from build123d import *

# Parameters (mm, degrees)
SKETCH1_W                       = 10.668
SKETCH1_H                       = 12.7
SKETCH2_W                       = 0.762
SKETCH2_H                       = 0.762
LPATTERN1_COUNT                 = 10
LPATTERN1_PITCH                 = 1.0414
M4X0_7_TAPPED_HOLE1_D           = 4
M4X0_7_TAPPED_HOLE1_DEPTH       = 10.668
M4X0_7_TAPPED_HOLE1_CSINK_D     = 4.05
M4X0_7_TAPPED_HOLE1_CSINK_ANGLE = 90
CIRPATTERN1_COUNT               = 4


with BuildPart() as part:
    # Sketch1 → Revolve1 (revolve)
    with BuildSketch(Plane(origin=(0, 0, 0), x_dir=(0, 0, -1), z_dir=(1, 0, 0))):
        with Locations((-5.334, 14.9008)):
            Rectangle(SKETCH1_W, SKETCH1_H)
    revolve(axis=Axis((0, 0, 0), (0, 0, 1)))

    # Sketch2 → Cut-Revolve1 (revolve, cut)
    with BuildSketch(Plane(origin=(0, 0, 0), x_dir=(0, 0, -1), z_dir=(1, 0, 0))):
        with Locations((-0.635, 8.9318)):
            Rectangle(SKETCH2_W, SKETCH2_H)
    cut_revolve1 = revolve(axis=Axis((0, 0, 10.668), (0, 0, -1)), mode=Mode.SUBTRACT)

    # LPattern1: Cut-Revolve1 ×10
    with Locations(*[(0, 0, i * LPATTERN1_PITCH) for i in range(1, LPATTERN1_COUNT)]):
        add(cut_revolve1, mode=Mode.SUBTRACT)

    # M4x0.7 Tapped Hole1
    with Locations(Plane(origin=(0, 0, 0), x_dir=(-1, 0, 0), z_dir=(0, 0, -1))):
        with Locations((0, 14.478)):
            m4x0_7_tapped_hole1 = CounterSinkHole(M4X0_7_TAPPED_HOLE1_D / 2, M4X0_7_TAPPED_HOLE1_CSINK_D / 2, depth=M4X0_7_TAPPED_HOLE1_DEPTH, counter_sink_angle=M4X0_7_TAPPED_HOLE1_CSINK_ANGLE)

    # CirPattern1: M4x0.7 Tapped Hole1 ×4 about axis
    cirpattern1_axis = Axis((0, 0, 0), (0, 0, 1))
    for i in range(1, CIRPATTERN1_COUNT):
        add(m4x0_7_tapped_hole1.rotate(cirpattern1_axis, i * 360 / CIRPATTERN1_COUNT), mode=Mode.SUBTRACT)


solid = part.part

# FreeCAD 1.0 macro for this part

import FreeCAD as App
import Part
import Sketcher

V = App.Vector
Q = App.Units.Quantity

doc = App.newDocument("Part")
params = doc.addObject("Spreadsheet::Sheet", "Params")
for row, (alias, value) in enumerate([
    ("sketch1_width", "0.5 in"),
    ("sketch1_height", "0.42 in"),
    ("revolution_angle", "360 deg"),
    ("sketch2_width", "0.03 in"),
    ("groove_angle", "360 deg"),
    ("linearpattern_pitch", "0.041 in"),
    ("hole_diameter", "4 mm"),
    ("hole_depth", "0.42 in"),
    ("hole_csink_diameter", "4.05 mm"),
], start=1):
    params.set(f"A{row}", alias)
    params.set(f"B{row}", "=" + value)
    params.setAlias(f"B{row}", alias)

body = doc.addObject("PartDesign::Body", "Body")

sketch1 = body.newObject("Sketcher::SketchObject", "Sketch")
sketch1.AttachmentSupport = (doc.getObject("YZ_Plane"), [""])
sketch1.MapMode = "FlatFace"
sketch1.addGeometry([
    Part.LineSegment(V(21.2508, 10.668, 0), V(8.5508, 10.668, 0)),
    Part.LineSegment(V(8.5508, 10.668, 0), V(8.5508, 0, 0)),
    Part.LineSegment(V(8.5508, 0, 0), V(21.2508, 0, 0)),
    Part.LineSegment(V(21.2508, 0, 0), V(21.2508, 10.668, 0)),
], False)
sketch1.addConstraint([
    Sketcher.Constraint("Coincident", 0, 2, 1, 1),
    Sketcher.Constraint("Coincident", 1, 2, 2, 1),
    Sketcher.Constraint("Coincident", 2, 2, 3, 1),
    Sketcher.Constraint("Coincident", 3, 2, 0, 1),
    Sketcher.Constraint("Horizontal", 0),
    Sketcher.Constraint("Vertical", 1),
    Sketcher.Constraint("Horizontal", 2),
    Sketcher.Constraint("Vertical", 3),
    Sketcher.Constraint("PointOnObject", 1, 2, -1),
    Sketcher.Constraint("DistanceX", 0, 2, 0, 1, Q("0.5 in")),
    Sketcher.Constraint("DistanceY", 1, 2, 1, 1, Q("0.42 in")),
    Sketcher.Constraint("DistanceX", -1, 1, 0, 2, 8.5508),
])
sketch1.setExpression("Constraints[9]", "Params.sketch1_width")
sketch1.setExpression("Constraints[10]", "Params.sketch1_height")
revolution = body.newObject("PartDesign::Revolution", "Revolution")
revolution.Profile = sketch1
revolution.ReferenceAxis = (sketch1, ["V_Axis"])
revolution.setExpression("Angle", "Params.revolution_angle")

sketch2 = body.newObject("Sketcher::SketchObject", "Sketch001")
sketch2.AttachmentSupport = (doc.getObject("YZ_Plane"), [""])
sketch2.MapMode = "FlatFace"
sketch2.addGeometry([
    Part.LineSegment(V(9.3128, 1.016, 0), V(8.5508, 1.016, 0)),
    Part.LineSegment(V(8.5508, 1.016, 0), V(8.5508, 0.254, 0)),
    Part.LineSegment(V(8.5508, 0.254, 0), V(9.3128, 0.254, 0)),
    Part.LineSegment(V(9.3128, 0.254, 0), V(9.3128, 1.016, 0)),
], False)
sketch2.addConstraint([
    Sketcher.Constraint("Coincident", 0, 2, 1, 1),
    Sketcher.Constraint("Coincident", 1, 2, 2, 1),
    Sketcher.Constraint("Coincident", 2, 2, 3, 1),
    Sketcher.Constraint("Coincident", 3, 2, 0, 1),
    Sketcher.Constraint("Horizontal", 0),
    Sketcher.Constraint("Vertical", 1),
    Sketcher.Constraint("Horizontal", 2),
    Sketcher.Constraint("Vertical", 3),
    Sketcher.Constraint("Equal", 2, 1),
    Sketcher.Constraint("DistanceX", 0, 2, 0, 1, Q("0.03 in")),
    Sketcher.Constraint("DistanceY", -1, 1, 0, 2, Q("0.04 in")),
    Sketcher.Constraint("DistanceX", -1, 1, 0, 2, 8.5508),
])
sketch2.setExpression("Constraints[9]", "Params.sketch2_width")
groove = body.newObject("PartDesign::Groove", "Groove")
groove.Profile = sketch2
groove.ReferenceAxis = (sketch2, ["V_Axis"])
groove.setExpression("Angle", "Params.groove_angle")
doc.recompute()

linearpattern = body.newObject("PartDesign::LinearPattern", "LinearPattern")
linearpattern.Originals = [groove]
linearpattern.Direction = (doc.getObject("Z_Axis"), [""])
linearpattern.Mode = "offset"
linearpattern.setExpression("Offset", "Params.linearpattern_pitch")
linearpattern.Occurrences = 10
body.Tip = linearpattern

sketch3 = body.newObject("Sketcher::SketchObject", "Sketch002")
sketch3.AttachmentSupport = (doc.getObject("XY_Plane"), [""])
sketch3.MapMode = "FlatFace"
sketch3.addGeometry(Part.Circle(V(0, 14.478, 0), V(0, 0, 1), 2), False)
sketch3.addConstraint([
    Sketcher.Constraint("PointOnObject", 0, 3, -2),
    Sketcher.Constraint("Diameter", 0, 4.0),
    Sketcher.Constraint("DistanceY", -1, 1, 0, 3, Q("0.57 in")),
])
doc.recompute()
hole = body.newObject("PartDesign::Hole", "Hole")
hole.Profile = sketch3
hole.ThreadType = "None"
hole.setExpression("Diameter", "Params.hole_diameter")
hole.DepthType = "Dimension"
hole.setExpression("Depth", "Params.hole_depth")
hole.DrillPoint = "Flat"
hole.HoleCutType = "Countersink"
hole.setExpression("HoleCutDiameter", "Params.hole_csink_diameter")
hole.HoleCutCountersinkAngle = 90
hole.Reversed = True
doc.recompute()

polarpattern = body.newObject("PartDesign::PolarPattern", "PolarPattern")
polarpattern.Originals = [hole]
polarpattern.Axis = (doc.getObject("Z_Axis"), [""])
polarpattern.Angle = 360
polarpattern.Occurrences = 4
body.Tip = polarpattern

doc.recompute()
